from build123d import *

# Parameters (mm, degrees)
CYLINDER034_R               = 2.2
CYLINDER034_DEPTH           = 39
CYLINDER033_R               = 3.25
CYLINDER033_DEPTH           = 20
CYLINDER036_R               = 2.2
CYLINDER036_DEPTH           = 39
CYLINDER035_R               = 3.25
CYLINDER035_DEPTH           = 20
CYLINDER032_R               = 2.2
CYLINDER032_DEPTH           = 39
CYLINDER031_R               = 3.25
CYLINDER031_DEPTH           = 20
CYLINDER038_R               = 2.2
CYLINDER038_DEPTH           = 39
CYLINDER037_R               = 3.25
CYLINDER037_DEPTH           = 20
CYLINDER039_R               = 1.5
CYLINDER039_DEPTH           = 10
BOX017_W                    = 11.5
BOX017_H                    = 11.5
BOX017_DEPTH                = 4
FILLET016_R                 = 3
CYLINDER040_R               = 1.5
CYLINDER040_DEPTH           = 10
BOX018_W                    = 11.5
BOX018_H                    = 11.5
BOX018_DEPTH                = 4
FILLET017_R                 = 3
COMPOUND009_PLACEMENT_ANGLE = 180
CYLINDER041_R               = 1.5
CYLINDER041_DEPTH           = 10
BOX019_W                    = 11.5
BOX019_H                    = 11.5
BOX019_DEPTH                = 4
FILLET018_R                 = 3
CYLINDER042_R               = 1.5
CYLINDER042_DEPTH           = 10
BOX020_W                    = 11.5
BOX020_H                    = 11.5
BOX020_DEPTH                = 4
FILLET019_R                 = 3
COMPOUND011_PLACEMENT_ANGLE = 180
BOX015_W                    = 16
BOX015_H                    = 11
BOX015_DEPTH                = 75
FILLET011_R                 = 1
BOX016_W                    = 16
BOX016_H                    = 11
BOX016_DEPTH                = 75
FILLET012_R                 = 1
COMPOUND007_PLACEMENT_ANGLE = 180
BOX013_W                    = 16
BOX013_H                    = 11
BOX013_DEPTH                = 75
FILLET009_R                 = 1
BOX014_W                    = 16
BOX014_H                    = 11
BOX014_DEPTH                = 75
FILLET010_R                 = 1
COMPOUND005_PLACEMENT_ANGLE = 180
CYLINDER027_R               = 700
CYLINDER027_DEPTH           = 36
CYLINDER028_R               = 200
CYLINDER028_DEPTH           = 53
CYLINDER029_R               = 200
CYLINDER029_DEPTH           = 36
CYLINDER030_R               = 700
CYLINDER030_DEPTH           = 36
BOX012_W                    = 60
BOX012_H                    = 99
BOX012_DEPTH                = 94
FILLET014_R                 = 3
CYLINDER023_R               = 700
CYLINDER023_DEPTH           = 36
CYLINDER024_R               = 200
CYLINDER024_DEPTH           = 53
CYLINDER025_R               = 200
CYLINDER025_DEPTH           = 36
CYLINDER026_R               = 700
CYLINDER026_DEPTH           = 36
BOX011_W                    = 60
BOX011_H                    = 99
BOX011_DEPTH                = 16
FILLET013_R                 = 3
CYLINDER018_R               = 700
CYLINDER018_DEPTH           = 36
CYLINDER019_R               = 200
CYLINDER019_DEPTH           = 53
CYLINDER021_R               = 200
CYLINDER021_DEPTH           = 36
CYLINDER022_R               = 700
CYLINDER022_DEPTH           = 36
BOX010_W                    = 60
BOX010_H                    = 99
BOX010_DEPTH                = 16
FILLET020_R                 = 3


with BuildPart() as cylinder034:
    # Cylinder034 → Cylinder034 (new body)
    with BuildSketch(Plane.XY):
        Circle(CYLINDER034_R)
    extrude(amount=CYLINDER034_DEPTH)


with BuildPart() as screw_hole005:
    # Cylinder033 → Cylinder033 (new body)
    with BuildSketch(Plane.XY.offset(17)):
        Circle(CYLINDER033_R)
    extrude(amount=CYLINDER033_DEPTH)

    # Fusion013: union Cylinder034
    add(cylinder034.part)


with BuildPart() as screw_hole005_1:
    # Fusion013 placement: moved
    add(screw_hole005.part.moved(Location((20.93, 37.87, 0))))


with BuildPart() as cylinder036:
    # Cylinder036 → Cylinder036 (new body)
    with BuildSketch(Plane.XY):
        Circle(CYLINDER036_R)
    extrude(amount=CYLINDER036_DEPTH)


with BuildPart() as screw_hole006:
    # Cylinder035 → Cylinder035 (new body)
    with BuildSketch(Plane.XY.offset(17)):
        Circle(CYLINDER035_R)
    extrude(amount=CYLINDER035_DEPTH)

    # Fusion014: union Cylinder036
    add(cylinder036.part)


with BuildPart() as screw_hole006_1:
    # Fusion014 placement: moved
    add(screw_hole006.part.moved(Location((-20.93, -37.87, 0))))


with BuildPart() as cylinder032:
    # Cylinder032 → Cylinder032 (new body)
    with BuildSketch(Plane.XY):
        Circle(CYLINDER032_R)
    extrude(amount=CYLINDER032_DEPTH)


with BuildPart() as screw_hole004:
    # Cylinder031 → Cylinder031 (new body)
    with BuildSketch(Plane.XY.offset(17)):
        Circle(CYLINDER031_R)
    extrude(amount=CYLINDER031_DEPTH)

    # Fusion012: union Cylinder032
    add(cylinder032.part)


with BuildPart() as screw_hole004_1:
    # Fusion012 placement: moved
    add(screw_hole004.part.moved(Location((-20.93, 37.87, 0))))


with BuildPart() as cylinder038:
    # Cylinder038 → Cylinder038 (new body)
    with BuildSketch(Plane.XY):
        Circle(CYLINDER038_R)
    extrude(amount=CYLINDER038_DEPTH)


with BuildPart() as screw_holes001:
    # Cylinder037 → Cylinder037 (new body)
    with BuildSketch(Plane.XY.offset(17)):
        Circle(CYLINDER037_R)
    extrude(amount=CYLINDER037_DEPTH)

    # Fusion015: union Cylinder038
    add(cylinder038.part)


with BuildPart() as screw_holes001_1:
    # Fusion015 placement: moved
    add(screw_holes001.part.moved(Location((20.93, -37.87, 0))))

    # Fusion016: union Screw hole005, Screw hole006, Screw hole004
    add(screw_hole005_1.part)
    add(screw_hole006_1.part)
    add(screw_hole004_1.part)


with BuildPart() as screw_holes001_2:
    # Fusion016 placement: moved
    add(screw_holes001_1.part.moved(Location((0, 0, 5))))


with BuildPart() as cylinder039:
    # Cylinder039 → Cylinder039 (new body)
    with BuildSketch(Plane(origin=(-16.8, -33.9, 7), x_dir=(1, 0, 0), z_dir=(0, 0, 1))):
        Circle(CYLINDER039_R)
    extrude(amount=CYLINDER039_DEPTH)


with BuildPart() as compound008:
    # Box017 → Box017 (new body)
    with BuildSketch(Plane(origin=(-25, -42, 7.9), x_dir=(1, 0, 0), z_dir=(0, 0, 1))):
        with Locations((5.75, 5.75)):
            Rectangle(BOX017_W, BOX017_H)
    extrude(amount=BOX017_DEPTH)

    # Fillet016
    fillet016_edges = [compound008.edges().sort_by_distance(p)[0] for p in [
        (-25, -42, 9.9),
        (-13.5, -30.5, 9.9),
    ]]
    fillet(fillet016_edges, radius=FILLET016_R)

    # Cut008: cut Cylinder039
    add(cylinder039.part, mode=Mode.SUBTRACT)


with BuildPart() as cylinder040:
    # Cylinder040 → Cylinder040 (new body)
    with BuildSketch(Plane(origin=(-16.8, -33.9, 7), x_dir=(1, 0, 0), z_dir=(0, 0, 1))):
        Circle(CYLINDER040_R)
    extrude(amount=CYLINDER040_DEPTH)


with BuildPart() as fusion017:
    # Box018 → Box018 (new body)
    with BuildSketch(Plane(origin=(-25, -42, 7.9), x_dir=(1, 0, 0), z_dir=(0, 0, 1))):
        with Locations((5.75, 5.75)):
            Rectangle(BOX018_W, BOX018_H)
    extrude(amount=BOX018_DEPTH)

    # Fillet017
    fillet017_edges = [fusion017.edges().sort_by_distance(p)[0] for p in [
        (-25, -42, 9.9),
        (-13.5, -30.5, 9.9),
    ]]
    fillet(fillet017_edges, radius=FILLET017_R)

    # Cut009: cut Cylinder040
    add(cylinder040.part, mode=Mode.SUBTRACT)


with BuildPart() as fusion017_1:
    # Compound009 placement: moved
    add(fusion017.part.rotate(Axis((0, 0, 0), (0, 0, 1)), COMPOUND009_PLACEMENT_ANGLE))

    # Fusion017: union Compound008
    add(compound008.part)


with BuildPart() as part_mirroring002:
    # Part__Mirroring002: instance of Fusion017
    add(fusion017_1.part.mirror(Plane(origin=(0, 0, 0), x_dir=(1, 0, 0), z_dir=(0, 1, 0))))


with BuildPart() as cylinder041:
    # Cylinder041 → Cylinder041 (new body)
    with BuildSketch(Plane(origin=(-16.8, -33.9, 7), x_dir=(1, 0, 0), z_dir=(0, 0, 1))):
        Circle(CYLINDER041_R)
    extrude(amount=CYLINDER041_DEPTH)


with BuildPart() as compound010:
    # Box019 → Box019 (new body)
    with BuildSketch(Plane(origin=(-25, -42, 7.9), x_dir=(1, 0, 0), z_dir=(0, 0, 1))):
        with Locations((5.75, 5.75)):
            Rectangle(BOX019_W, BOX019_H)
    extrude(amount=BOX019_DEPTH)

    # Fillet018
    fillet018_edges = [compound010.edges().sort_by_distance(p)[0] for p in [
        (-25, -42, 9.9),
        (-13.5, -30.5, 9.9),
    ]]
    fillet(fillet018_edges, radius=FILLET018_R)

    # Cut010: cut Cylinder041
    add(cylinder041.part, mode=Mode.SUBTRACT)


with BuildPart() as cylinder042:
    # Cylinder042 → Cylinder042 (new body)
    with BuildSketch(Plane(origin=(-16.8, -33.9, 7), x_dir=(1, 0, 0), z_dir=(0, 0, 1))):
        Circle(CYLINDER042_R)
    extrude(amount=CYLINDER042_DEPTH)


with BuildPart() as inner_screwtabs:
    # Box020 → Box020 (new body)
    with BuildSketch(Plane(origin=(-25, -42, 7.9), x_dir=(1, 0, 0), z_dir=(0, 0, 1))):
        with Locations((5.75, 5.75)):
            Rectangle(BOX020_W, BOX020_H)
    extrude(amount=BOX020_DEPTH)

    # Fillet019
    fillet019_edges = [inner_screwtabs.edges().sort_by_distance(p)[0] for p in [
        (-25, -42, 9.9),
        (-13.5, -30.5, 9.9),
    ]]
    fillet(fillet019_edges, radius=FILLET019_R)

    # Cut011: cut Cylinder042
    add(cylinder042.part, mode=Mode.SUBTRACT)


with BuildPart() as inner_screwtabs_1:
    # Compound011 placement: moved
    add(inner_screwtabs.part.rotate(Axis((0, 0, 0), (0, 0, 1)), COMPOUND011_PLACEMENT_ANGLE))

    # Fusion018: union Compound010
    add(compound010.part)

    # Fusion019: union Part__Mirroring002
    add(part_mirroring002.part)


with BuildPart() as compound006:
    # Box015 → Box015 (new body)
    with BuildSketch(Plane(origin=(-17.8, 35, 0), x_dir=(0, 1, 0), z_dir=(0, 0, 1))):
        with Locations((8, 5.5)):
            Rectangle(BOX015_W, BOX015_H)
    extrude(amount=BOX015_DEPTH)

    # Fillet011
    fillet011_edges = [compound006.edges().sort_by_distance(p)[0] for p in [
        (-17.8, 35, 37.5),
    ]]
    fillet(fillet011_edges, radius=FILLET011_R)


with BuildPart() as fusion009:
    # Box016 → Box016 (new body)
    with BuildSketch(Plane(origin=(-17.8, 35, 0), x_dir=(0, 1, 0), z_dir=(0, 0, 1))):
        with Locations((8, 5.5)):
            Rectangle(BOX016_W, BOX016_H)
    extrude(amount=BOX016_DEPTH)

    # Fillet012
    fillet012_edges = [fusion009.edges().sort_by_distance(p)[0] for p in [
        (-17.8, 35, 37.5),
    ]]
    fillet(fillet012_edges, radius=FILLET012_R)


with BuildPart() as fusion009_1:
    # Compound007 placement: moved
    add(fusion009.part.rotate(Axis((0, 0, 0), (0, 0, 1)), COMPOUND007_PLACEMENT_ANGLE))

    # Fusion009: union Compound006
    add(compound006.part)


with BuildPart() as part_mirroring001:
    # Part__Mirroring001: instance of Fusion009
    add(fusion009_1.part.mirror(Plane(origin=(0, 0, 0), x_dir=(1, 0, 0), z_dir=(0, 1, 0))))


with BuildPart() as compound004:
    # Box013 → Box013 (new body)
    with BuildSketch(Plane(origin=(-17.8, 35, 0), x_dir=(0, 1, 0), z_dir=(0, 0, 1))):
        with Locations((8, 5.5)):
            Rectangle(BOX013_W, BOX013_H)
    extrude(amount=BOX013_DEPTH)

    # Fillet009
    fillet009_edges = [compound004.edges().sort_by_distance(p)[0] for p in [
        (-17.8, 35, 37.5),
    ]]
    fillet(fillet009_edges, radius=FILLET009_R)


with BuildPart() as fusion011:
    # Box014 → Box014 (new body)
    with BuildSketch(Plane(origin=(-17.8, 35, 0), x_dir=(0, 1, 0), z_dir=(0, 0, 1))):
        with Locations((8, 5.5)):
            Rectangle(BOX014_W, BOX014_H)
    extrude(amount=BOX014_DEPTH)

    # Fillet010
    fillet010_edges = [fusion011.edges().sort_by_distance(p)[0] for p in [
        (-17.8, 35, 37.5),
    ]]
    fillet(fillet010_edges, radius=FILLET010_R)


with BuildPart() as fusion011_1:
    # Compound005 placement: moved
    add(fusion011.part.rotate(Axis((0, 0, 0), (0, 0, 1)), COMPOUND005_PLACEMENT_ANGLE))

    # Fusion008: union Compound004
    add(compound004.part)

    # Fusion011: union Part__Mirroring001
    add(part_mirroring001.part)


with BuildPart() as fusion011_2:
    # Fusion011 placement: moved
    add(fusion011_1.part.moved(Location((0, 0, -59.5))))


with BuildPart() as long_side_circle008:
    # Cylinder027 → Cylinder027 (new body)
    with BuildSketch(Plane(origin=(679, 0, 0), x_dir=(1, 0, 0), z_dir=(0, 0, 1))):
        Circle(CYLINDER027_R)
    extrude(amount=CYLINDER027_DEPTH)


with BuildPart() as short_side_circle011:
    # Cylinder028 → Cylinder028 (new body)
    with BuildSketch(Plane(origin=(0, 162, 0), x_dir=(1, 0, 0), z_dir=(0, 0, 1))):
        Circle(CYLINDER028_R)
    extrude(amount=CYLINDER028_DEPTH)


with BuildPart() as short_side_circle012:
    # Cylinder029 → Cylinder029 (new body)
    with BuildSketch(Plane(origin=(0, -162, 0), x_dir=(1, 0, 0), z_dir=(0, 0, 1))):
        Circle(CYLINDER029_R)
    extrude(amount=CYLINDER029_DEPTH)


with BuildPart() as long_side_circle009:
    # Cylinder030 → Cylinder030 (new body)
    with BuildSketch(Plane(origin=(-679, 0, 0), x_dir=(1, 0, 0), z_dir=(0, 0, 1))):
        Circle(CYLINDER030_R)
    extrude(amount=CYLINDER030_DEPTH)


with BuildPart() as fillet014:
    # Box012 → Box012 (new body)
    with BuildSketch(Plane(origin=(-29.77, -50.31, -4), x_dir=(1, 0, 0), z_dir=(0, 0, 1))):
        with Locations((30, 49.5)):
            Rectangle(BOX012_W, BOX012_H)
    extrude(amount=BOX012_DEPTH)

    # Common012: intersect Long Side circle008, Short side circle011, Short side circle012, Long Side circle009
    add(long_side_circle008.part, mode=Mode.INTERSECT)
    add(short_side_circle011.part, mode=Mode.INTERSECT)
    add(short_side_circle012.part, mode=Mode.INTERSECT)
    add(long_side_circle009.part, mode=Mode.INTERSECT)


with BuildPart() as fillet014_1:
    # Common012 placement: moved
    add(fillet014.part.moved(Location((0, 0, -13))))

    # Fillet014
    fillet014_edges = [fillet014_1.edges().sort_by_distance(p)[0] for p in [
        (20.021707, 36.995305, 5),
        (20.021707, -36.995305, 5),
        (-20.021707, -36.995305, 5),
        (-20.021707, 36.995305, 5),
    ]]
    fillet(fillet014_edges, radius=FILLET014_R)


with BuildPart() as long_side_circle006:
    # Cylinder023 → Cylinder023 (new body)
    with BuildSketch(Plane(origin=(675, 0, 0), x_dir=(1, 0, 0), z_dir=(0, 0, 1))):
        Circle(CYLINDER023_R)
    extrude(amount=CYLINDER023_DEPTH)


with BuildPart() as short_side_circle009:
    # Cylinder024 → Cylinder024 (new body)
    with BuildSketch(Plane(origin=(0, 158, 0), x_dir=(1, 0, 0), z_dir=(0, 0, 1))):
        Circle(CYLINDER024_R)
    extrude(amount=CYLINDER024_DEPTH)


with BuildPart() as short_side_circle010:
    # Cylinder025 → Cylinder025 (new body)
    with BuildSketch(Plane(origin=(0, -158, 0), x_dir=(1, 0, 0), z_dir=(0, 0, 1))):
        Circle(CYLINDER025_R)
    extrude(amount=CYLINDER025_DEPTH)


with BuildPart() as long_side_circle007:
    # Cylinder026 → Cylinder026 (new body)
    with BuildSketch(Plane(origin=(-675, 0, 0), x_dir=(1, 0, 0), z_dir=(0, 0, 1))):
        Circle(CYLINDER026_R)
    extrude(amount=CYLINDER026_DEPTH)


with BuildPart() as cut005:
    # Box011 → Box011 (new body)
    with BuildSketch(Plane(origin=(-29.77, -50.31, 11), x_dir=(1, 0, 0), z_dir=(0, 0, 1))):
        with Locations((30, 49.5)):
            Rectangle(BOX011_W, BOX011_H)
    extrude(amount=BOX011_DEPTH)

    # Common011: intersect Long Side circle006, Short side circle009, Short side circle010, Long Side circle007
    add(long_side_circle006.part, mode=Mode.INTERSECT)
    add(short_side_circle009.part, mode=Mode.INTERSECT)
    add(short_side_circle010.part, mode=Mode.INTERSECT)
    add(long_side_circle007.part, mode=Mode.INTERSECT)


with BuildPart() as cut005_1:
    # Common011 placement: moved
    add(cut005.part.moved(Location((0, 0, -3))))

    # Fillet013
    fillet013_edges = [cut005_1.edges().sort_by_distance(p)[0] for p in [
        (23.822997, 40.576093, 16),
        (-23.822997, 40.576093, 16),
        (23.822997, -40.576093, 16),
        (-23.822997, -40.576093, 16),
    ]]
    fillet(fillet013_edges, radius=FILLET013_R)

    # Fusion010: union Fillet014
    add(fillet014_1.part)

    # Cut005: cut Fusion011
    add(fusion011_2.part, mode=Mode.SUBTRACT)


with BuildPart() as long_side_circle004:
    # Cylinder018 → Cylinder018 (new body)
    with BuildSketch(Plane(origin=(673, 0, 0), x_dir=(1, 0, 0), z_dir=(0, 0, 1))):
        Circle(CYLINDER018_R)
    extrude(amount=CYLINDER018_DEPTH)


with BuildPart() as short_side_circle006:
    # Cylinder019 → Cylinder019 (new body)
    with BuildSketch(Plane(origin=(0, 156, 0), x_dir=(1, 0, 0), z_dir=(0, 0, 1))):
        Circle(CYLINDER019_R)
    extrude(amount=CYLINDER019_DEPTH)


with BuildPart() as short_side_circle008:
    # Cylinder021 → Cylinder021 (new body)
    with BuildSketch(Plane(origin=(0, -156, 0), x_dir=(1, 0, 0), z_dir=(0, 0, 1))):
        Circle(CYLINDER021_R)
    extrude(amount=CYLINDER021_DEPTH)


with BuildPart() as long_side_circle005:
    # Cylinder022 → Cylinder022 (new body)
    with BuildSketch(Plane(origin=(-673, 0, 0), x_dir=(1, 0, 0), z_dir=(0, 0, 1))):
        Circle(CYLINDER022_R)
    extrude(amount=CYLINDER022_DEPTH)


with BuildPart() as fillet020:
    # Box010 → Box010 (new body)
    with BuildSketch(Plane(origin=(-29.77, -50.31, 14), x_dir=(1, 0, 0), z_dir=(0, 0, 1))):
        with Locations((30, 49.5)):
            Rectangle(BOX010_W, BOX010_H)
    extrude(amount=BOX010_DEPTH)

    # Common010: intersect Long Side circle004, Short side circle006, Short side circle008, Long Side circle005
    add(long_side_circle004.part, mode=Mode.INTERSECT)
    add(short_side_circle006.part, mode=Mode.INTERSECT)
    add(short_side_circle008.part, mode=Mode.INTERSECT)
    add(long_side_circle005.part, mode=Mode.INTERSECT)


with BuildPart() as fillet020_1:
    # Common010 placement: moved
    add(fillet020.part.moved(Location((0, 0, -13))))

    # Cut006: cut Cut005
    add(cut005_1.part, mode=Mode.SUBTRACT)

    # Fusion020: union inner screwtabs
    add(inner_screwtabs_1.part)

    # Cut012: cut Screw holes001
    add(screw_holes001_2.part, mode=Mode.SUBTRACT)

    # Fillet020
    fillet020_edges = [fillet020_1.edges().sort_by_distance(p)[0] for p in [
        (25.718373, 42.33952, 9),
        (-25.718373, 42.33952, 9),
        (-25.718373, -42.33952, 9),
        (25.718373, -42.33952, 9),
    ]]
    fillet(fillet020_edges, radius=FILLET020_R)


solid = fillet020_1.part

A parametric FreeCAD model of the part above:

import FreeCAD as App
import Part
import Sketcher


def edges_at(feature, points):
    """Names of the edges that pass closest to the given points."""
    edges = feature.Shape.Edges
    near = lambda p: min(range(len(edges)), key=lambda i: edges[i].distToShape(Part.Vertex(*p))[0])
    return sorted({f"Edge{near(p) + 1}" for p in points})


def add_polygon(sketch, points):
    """Adds a closed chain of lines whose ends are joined by coincident constraints."""
    first, n = sketch.GeometryCount, len(points)
    for a, b in zip(points, points[1:] + points[:1]):
        sketch.addGeometry(Part.LineSegment(App.Vector(*a, 0), App.Vector(*b, 0)), False)
    for i in range(n):
        sketch.addConstraint(Sketcher.Constraint("Coincident", first + i, 2, first + (i + 1) % n, 1))

doc = App.newDocument("Part")
body = doc.addObject("PartDesign::Body", "Body")

sketch1 = body.newObject("Sketcher::SketchObject", "Sketch")
sketch1.AttachmentSupport = (doc.getObject("XY_Plane"), [""])
sketch1.MapMode = "FlatFace"
sketch1.addGeometry(Part.Circle(App.Vector(0, 0, 0), App.Vector(0, 0, 1), 2.2), False)
sketch1.addConstraint([
    Sketcher.Constraint("Coincident", 0, 3, -1, 1),
    Sketcher.Constraint("Diameter", 0, 4.4),
])
pad1 = body.newObject("PartDesign::Pad", "Pad")
pad1.Profile = sketch1
pad1.Length = 39
body2 = doc.addObject("PartDesign::Body", "Body001")

sketch2 = body2.newObject("Sketcher::SketchObject", "Sketch001")
sketch2.AttachmentSupport = (doc.getObject("XY_Plane001"), [""])
sketch2.MapMode = "FlatFace"
sketch2.AttachmentOffset = App.Placement(App.Vector(0, 0, 17), App.Rotation())
sketch2.addGeometry(Part.Circle(App.Vector(0, 0, 0), App.Vector(0, 0, 1), 3.25), False)
sketch2.addConstraint([
    Sketcher.Constraint("Coincident", 0, 3, -1, 1),
    Sketcher.Constraint("Diameter", 0, 6.5),
])
pad2 = body2.newObject("PartDesign::Pad", "Pad001")
pad2.Profile = sketch2
pad2.Length = 20
doc.recompute()

boolean = body2.newObject("PartDesign::Boolean", "Boolean")
boolean.Type = "Fuse"
boolean.addObjects([body])
body3 = doc.addObject("PartDesign::Body", "Body002")
doc.recompute()

body2.Placement = App.Placement(App.Vector(20.93, 37.87, 0), App.Rotation(App.Vector(0, 0, 1), 0))
boolean2 = body3.newObject("PartDesign::Boolean", "Boolean001")
boolean2.Type = "Fuse"
boolean2.addObjects([body2])
body4 = doc.addObject("PartDesign::Body", "Body003")

sketch3 = body4.newObject("Sketcher::SketchObject", "Sketch002")
sketch3.AttachmentSupport = (doc.getObject("XY_Plane003"), [""])
sketch3.MapMode = "FlatFace"
sketch3.addGeometry(Part.Circle(App.Vector(0, 0, 0), App.Vector(0, 0, 1), 2.2), False)
sketch3.addConstraint([
    Sketcher.Constraint("Coincident", 0, 3, -1, 1),
    Sketcher.Constraint("Diameter", 0, 4.4),
])
pad3 = body4.newObject("PartDesign::Pad", "Pad002")
pad3.Profile = sketch3
pad3.Length = 39
body5 = doc.addObject("PartDesign::Body", "Body004")

sketch4 = body5.newObject("Sketcher::SketchObject", "Sketch003")
sketch4.AttachmentSupport = (doc.getObject("XY_Plane004"), [""])
sketch4.MapMode = "FlatFace"
sketch4.AttachmentOffset = App.Placement(App.Vector(0, 0, 17), App.Rotation())
sketch4.addGeometry(Part.Circle(App.Vector(0, 0, 0), App.Vector(0, 0, 1), 3.25), False)
sketch4.addConstraint([
    Sketcher.Constraint("Coincident", 0, 3, -1, 1),
    Sketcher.Constraint("Diameter", 0, 6.5),
])
pad4 = body5.newObject("PartDesign::Pad", "Pad003")
pad4.Profile = sketch4
pad4.Length = 20
doc.recompute()

boolean3 = body5.newObject("PartDesign::Boolean", "Boolean002")
boolean3.Type = "Fuse"
boolean3.addObjects([body4])
body6 = doc.addObject("PartDesign::Body", "Body005")
doc.recompute()

body5.Placement = App.Placement(App.Vector(-20.93, -37.87, 0), App.Rotation(App.Vector(0, 0, 1), 0))
boolean4 = body6.newObject("PartDesign::Boolean", "Boolean003")
boolean4.Type = "Fuse"
boolean4.addObjects([body5])
body7 = doc.addObject("PartDesign::Body", "Body006")

sketch5 = body7.newObject("Sketcher::SketchObject", "Sketch004")
sketch5.AttachmentSupport = (doc.getObject("XY_Plane006"), [""])
sketch5.MapMode = "FlatFace"
sketch5.addGeometry(Part.Circle(App.Vector(0, 0, 0), App.Vector(0, 0, 1), 2.2), False)
sketch5.addConstraint([
    Sketcher.Constraint("Coincident", 0, 3, -1, 1),
    Sketcher.Constraint("Diameter", 0, 4.4),
])
pad5 = body7.newObject("PartDesign::Pad", "Pad004")
pad5.Profile = sketch5
pad5.Length = 39
body8 = doc.addObject("PartDesign::Body", "Body007")

sketch6 = body8.newObject("Sketcher::SketchObject", "Sketch005")
sketch6.AttachmentSupport = (doc.getObject("XY_Plane007"), [""])
sketch6.MapMode = "FlatFace"
sketch6.AttachmentOffset = App.Placement(App.Vector(0, 0, 17), App.Rotation())
sketch6.addGeometry(Part.Circle(App.Vector(0, 0, 0), App.Vector(0, 0, 1), 3.25), False)
sketch6.addConstraint([
    Sketcher.Constraint("Coincident", 0, 3, -1, 1),
    Sketcher.Constraint("Diameter", 0, 6.5),
])
pad6 = body8.newObject("PartDesign::Pad", "Pad005")
pad6.Profile = sketch6
pad6.Length = 20
doc.recompute()

boolean5 = body8.newObject("PartDesign::Boolean", "Boolean004")
boolean5.Type = "Fuse"
boolean5.addObjects([body7])
body9 = doc.addObject("PartDesign::Body", "Body008")
doc.recompute()

body8.Placement = App.Placement(App.Vector(-20.93, 37.87, 0), App.Rotation(App.Vector(0, 0, 1), 0))
boolean6 = body9.newObject("PartDesign::Boolean", "Boolean005")
boolean6.Type = "Fuse"
boolean6.addObjects([body8])
body10 = doc.addObject("PartDesign::Body", "Body009")

sketch7 = body10.newObject("Sketcher::SketchObject", "Sketch006")
sketch7.AttachmentSupport = (doc.getObject("XY_Plane009"), [""])
sketch7.MapMode = "FlatFace"
sketch7.addGeometry(Part.Circle(App.Vector(0, 0, 0), App.Vector(0, 0, 1), 2.2), False)
sketch7.addConstraint([
    Sketcher.Constraint("Coincident", 0, 3, -1, 1),
    Sketcher.Constraint("Diameter", 0, 4.4),
])
pad7 = body10.newObject("PartDesign::Pad", "Pad006")
pad7.Profile = sketch7
pad7.Length = 39
body11 = doc.addObject("PartDesign::Body", "Body010")

sketch8 = body11.newObject("Sketcher::SketchObject", "Sketch007")
sketch8.AttachmentSupport = (doc.getObject("XY_Plane010"), [""])
sketch8.MapMode = "FlatFace"
sketch8.AttachmentOffset = App.Placement(App.Vector(0, 0, 17), App.Rotation())
sketch8.addGeometry(Part.Circle(App.Vector(0, 0, 0), App.Vector(0, 0, 1), 3.25), False)
sketch8.addConstraint([
    Sketcher.Constraint("Coincident", 0, 3, -1, 1),
    Sketcher.Constraint("Diameter", 0, 6.5),
])
pad8 = body11.newObject("PartDesign::Pad", "Pad007")
pad8.Profile = sketch8
pad8.Length = 20
doc.recompute()

boolean7 = body11.newObject("PartDesign::Boolean", "Boolean006")
boolean7.Type = "Fuse"
boolean7.addObjects([body10])
body12 = doc.addObject("PartDesign::Body", "Body011")
body12.AllowCompound = True
doc.recompute()

body11.Placement = App.Placement(App.Vector(20.93, -37.87, 0), App.Rotation(App.Vector(0, 0, 1), 0))
boolean8 = body12.newObject("PartDesign::Boolean", "Boolean007")
boolean8.Type = "Fuse"
boolean8.addObjects([body11])
doc.recompute()

boolean9 = body12.newObject("PartDesign::Boolean", "Boolean008")
boolean9.Type = "Fuse"
boolean9.addObjects([body3])
doc.recompute()

boolean10 = body12.newObject("PartDesign::Boolean", "Boolean009")
boolean10.Type = "Fuse"
boolean10.addObjects([body6])
doc.recompute()

boolean11 = body12.newObject("PartDesign::Boolean", "Boolean010")
boolean11.Type = "Fuse"
boolean11.addObjects([body9])
body13 = doc.addObject("PartDesign::Body", "Body012")
body13.AllowCompound = True
doc.recompute()

body12.Placement = App.Placement(App.Vector(0, 0, 5), App.Rotation(App.Vector(0, 0, 1), 0))
boolean12 = body13.newObject("PartDesign::Boolean", "Boolean011")
boolean12.Type = "Fuse"
boolean12.addObjects([body12])
body14 = doc.addObject("PartDesign::Body", "Body013")

sketch9 = body14.newObject("Sketcher::SketchObject", "Sketch008")
sketch9.AttachmentSupport = (doc.getObject("XY_Plane013"), [""])
sketch9.MapMode = "FlatFace"
sketch9.AttachmentOffset = App.Placement(App.Vector(0, 0, 7), App.Rotation())
sketch9.addGeometry(Part.Circle(App.Vector(-16.8, -33.9, 0), App.Vector(0, 0, 1), 1.5), False)
sketch9.addConstraint([
    Sketcher.Constraint("Diameter", 0, 3.0),
    Sketcher.Constraint("DistanceX", 0, 3, -1, 1, 16.8),
    Sketcher.Constraint("DistanceY", 0, 3, -1, 1, 33.9),
])
pad9 = body14.newObject("PartDesign::Pad", "Pad008")
pad9.Profile = sketch9
pad9.Length = 10
body15 = doc.addObject("PartDesign::Body", "Body014")

sketch10 = body15.newObject("Sketcher::SketchObject", "Sketch009")
sketch10.AttachmentSupport = (doc.getObject("XY_Plane014"), [""])
sketch10.MapMode = "FlatFace"
sketch10.AttachmentOffset = App.Placement(App.Vector(0, 0, 7.9), App.Rotation())
add_polygon(sketch10, [(-25, -30.5), (-25, -42), (-13.5, -42), (-13.5, -30.5)])
sketch10.addConstraint([
    Sketcher.Constraint("Vertical", 0),
    Sketcher.Constraint("Horizontal", 1),
    Sketcher.Constraint("Vertical", 2),
    Sketcher.Constraint("Horizontal", 3),
    Sketcher.Constraint("Equal", 3, 0),
    Sketcher.Constraint("DistanceX", 1, 1, 1, 2, 11.5),
    Sketcher.Constraint("DistanceX", 0, 2, -1, 1, 25.0),
    Sketcher.Constraint("DistanceY", 0, 2, -1, 1, 42.0),
])
pad10 = body15.newObject("PartDesign::Pad", "Pad009")
pad10.Profile = sketch10
pad10.Length = 4
doc.recompute()

fillet = body15.newObject("PartDesign::Fillet", "Fillet")
fillet.Base = (pad10, edges_at(pad10, [(-25, -42, 9.9), (-13.5, -30.5, 9.9)]))
fillet.Radius = 3
doc.recompute()

boolean13 = body15.newObject("PartDesign::Boolean", "Boolean012")
boolean13.Type = "Cut"
boolean13.addObjects([body14])
body16 = doc.addObject("PartDesign::Body", "Body015")

sketch11 = body16.newObject("Sketcher::SketchObject", "Sketch010")
sketch11.AttachmentSupport = (doc.getObject("XY_Plane015"), [""])
sketch11.MapMode = "FlatFace"
sketch11.AttachmentOffset = App.Placement(App.Vector(0, 0, 7), App.Rotation())
sketch11.addGeometry(Part.Circle(App.Vector(-16.8, -33.9, 0), App.Vector(0, 0, 1), 1.5), False)
sketch11.addConstraint([
    Sketcher.Constraint("Diameter", 0, 3.0),
    Sketcher.Constraint("DistanceX", 0, 3, -1, 1, 16.8),
    Sketcher.Constraint("DistanceY", 0, 3, -1, 1, 33.9),
])
pad11 = body16.newObject("PartDesign::Pad", "Pad010")
pad11.Profile = sketch11
pad11.Length = 10
body17 = doc.addObject("PartDesign::Body", "Body016")

sketch12 = body17.newObject("Sketcher::SketchObject", "Sketch011")
sketch12.AttachmentSupport = (doc.getObject("XY_Plane016"), [""])
sketch12.MapMode = "FlatFace"
sketch12.AttachmentOffset = App.Placement(App.Vector(0, 0, 7.9), App.Rotation())
add_polygon(sketch12, [(-25, -30.5), (-25, -42), (-13.5, -42), (-13.5, -30.5)])
sketch12.addConstraint([
    Sketcher.Constraint("Vertical", 0),
    Sketcher.Constraint("Horizontal", 1),
    Sketcher.Constraint("Vertical", 2),
    Sketcher.Constraint("Horizontal", 3),
    Sketcher.Constraint("Equal", 3, 0),
    Sketcher.Constraint("DistanceX", 1, 1, 1, 2, 11.5),
    Sketcher.Constraint("DistanceX", 0, 2, -1, 1, 25.0),
    Sketcher.Constraint("DistanceY", 0, 2, -1, 1, 42.0),
])
pad12 = body17.newObject("PartDesign::Pad", "Pad011")
pad12.Profile = sketch12
pad12.Length = 4
doc.recompute()

fillet2 = body17.newObject("PartDesign::Fillet", "Fillet001")
fillet2.Base = (pad12, edges_at(pad12, [(-25, -42, 9.9), (-13.5, -30.5, 9.9)]))
fillet2.Radius = 3
doc.recompute()

boolean14 = body17.newObject("PartDesign::Boolean", "Boolean013")
boolean14.Type = "Cut"
boolean14.addObjects([body16])
body18 = doc.addObject("PartDesign::Body", "Body017")
body18.AllowCompound = True
doc.recompute()

body17.Placement = App.Placement(App.Vector(0, 0, 0), App.Rotation(App.Vector(0, 0, 1), 180))
boolean15 = body18.newObject("PartDesign::Boolean", "Boolean014")
boolean15.Type = "Fuse"
boolean15.addObjects([body17])
doc.recompute()

boolean16 = body18.newObject("PartDesign::Boolean", "Boolean015")
boolean16.Type = "Fuse"
boolean16.addObjects([body15])
body19 = doc.addObject("PartDesign::Body", "Body018")
body19.AllowCompound = True
doc.recompute()

mirroring = doc.addObject("Part::Mirroring", "Mirroring")
mirroring.Source = body18
mirroring.Base = App.Vector(0, 0, 0)
mirroring.Normal = App.Vector(0, 1, 0)
body19.BaseFeature = mirroring
doc.recompute()
body20 = doc.addObject("PartDesign::Body", "Body019")

sketch13 = body20.newObject("Sketcher::SketchObject", "Sketch012")
sketch13.AttachmentSupport = (doc.getObject("XY_Plane019"), [""])
sketch13.MapMode = "FlatFace"
sketch13.AttachmentOffset = App.Placement(App.Vector(0, 0, 7), App.Rotation())
sketch13.addGeometry(Part.Circle(App.Vector(-16.8, -33.9, 0), App.Vector(0, 0, 1), 1.5), False)
sketch13.addConstraint([
    Sketcher.Constraint("Diameter", 0, 3.0),
    Sketcher.Constraint("DistanceX", 0, 3, -1, 1, 16.8),
    Sketcher.Constraint("DistanceY", 0, 3, -1, 1, 33.9),
])
pad13 = body20.newObject("PartDesign::Pad", "Pad012")
pad13.Profile = sketch13
pad13.Length = 10
body21 = doc.addObject("PartDesign::Body", "Body020")

sketch14 = body21.newObject("Sketcher::SketchObject", "Sketch013")
sketch14.AttachmentSupport = (doc.getObject("XY_Plane020"), [""])
sketch14.MapMode = "FlatFace"
sketch14.AttachmentOffset = App.Placement(App.Vector(0, 0, 7.9), App.Rotation())
add_polygon(sketch14, [(-25, -30.5), (-25, -42), (-13.5, -42), (-13.5, -30.5)])
sketch14.addConstraint([
    Sketcher.Constraint("Vertical", 0),
    Sketcher.Constraint("Horizontal", 1),
    Sketcher.Constraint("Vertical", 2),
    Sketcher.Constraint("Horizontal", 3),
    Sketcher.Constraint("Equal", 3, 0),
    Sketcher.Constraint("DistanceX", 1, 1, 1, 2, 11.5),
    Sketcher.Constraint("DistanceX", 0, 2, -1, 1, 25.0),
    Sketcher.Constraint("DistanceY", 0, 2, -1, 1, 42.0),
])
pad14 = body21.newObject("PartDesign::Pad", "Pad013")
pad14.Profile = sketch14
pad14.Length = 4
doc.recompute()

fillet3 = body21.newObject("PartDesign::Fillet", "Fillet002")
fillet3.Base = (pad14, edges_at(pad14, [(-25, -42, 9.9), (-13.5, -30.5, 9.9)]))
fillet3.Radius = 3
doc.recompute()

boolean17 = body21.newObject("PartDesign::Boolean", "Boolean016")
boolean17.Type = "Cut"
boolean17.addObjects([body20])
body22 = doc.addObject("PartDesign::Body", "Body021")

sketch15 = body22.newObject("Sketcher::SketchObject", "Sketch014")
sketch15.AttachmentSupport = (doc.getObject("XY_Plane021"), [""])
sketch15.MapMode = "FlatFace"
sketch15.AttachmentOffset = App.Placement(App.Vector(0, 0, 7), App.Rotation())
sketch15.addGeometry(Part.Circle(App.Vector(-16.8, -33.9, 0), App.Vector(0, 0, 1), 1.5), False)
sketch15.addConstraint([
    Sketcher.Constraint("Diameter", 0, 3.0),
    Sketcher.Constraint("DistanceX", 0, 3, -1, 1, 16.8),
    Sketcher.Constraint("DistanceY", 0, 3, -1, 1, 33.9),
])
pad15 = body22.newObject("PartDesign::Pad", "Pad014")
pad15.Profile = sketch15
pad15.Length = 10
body23 = doc.addObject("PartDesign::Body", "Body022")

sketch16 = body23.newObject("Sketcher::SketchObject", "Sketch015")
sketch16.AttachmentSupport = (doc.getObject("XY_Plane022"), [""])
sketch16.MapMode = "FlatFace"
sketch16.AttachmentOffset = App.Placement(App.Vector(0, 0, 7.9), App.Rotation())
add_polygon(sketch16, [(-25, -30.5), (-25, -42), (-13.5, -42), (-13.5, -30.5)])
sketch16.addConstraint([
    Sketcher.Constraint("Vertical", 0),
    Sketcher.Constraint("Horizontal", 1),
    Sketcher.Constraint("Vertical", 2),
    Sketcher.Constraint("Horizontal", 3),
    Sketcher.Constraint("Equal", 3, 0),
    Sketcher.Constraint("DistanceX", 1, 1, 1, 2, 11.5),
    Sketcher.Constraint("DistanceX", 0, 2, -1, 1, 25.0),
    Sketcher.Constraint("DistanceY", 0, 2, -1, 1, 42.0),
])
pad16 = body23.newObject("PartDesign::Pad", "Pad015")
pad16.Profile = sketch16
pad16.Length = 4
doc.recompute()

fillet4 = body23.newObject("PartDesign::Fillet", "Fillet003")
fillet4.Base = (pad16, edges_at(pad16, [(-25, -42, 9.9), (-13.5, -30.5, 9.9)]))
fillet4.Radius = 3
doc.recompute()

boolean18 = body23.newObject("PartDesign::Boolean", "Boolean017")
boolean18.Type = "Cut"
boolean18.addObjects([body22])
body24 = doc.addObject("PartDesign::Body", "Body023")
body24.AllowCompound = True
doc.recompute()

body23.Placement = App.Placement(App.Vector(0, 0, 0), App.Rotation(App.Vector(0, 0, 1), 180))
boolean19 = body24.newObject("PartDesign::Boolean", "Boolean018")
boolean19.Type = "Fuse"
boolean19.addObjects([body23])
doc.recompute()

boolean20 = body24.newObject("PartDesign::Boolean", "Boolean019")
boolean20.Type = "Fuse"
boolean20.addObjects([body21])
doc.recompute()

boolean21 = body24.newObject("PartDesign::Boolean", "Boolean020")
boolean21.Type = "Fuse"
boolean21.addObjects([body19])
body25 = doc.addObject("PartDesign::Body", "Body024")

sketch17 = body25.newObject("Sketcher::SketchObject", "Sketch016")
sketch17.AttachmentSupport = (doc.getObject("XY_Plane024"), [""])
sketch17.MapMode = "FlatFace"
add_polygon(sketch17, [(-28.8, 35), (-17.8, 35), (-17.8, 51), (-28.8, 51)])
sketch17.addConstraint([
    Sketcher.Constraint("Horizontal", 0),
    Sketcher.Constraint("Vertical", 1),
    Sketcher.Constraint("Horizontal", 2),
    Sketcher.Constraint("Vertical", 3),
    Sketcher.Constraint("DistanceX", 0, 1, 0, 2, 11.0),
    Sketcher.Constraint("DistanceY", 1, 1, 1, 2, 16.0),
    Sketcher.Constraint("DistanceY", -1, 1, 0, 2, 35.0),
    Sketcher.Constraint("DistanceX", 0, 2, -1, 1, 17.8),
])
pad17 = body25.newObject("PartDesign::Pad", "Pad016")
pad17.Profile = sketch17
pad17.Length = 75
doc.recompute()

fillet5 = body25.newObject("PartDesign::Fillet", "Fillet004")
fillet5.Base = (pad17, edges_at(pad17, [(-17.8, 35, 37.5)]))
fillet5.Radius = 1
body26 = doc.addObject("PartDesign::Body", "Body025")

sketch18 = body26.newObject("Sketcher::SketchObject", "Sketch017")
sketch18.AttachmentSupport = (doc.getObject("XY_Plane025"), [""])
sketch18.MapMode = "FlatFace"
add_polygon(sketch18, [(-28.8, 35), (-17.8, 35), (-17.8, 51), (-28.8, 51)])
sketch18.addConstraint([
    Sketcher.Constraint("Horizontal", 0),
    Sketcher.Constraint("Vertical", 1),
    Sketcher.Constraint("Horizontal", 2),
    Sketcher.Constraint("Vertical", 3),
    Sketcher.Constraint("DistanceX", 0, 1, 0, 2, 11.0),
    Sketcher.Constraint("DistanceY", 1, 1, 1, 2, 16.0),
    Sketcher.Constraint("DistanceY", -1, 1, 0, 2, 35.0),
    Sketcher.Constraint("DistanceX", 0, 2, -1, 1, 17.8),
])
pad18 = body26.newObject("PartDesign::Pad", "Pad017")
pad18.Profile = sketch18
pad18.Length = 75
doc.recompute()

fillet6 = body26.newObject("PartDesign::Fillet", "Fillet005")
fillet6.Base = (pad18, edges_at(pad18, [(-17.8, 35, 37.5)]))
fillet6.Radius = 1
body27 = doc.addObject("PartDesign::Body", "Body026")
body27.AllowCompound = True
doc.recompute()

body26.Placement = App.Placement(App.Vector(0, 0, 0), App.Rotation(App.Vector(0, 0, 1), 180))
boolean22 = body27.newObject("PartDesign::Boolean", "Boolean021")
boolean22.Type = "Fuse"
boolean22.addObjects([body26])
doc.recompute()

boolean23 = body27.newObject("PartDesign::Boolean", "Boolean022")
boolean23.Type = "Fuse"
boolean23.addObjects([body25])
body28 = doc.addObject("PartDesign::Body", "Body027")
body28.AllowCompound = True
doc.recompute()

mirroring2 = doc.addObject("Part::Mirroring", "Mirroring001")
mirroring2.Source = body27
mirroring2.Base = App.Vector(0, 0, 0)
mirroring2.Normal = App.Vector(0, 1, 0)
body28.BaseFeature = mirroring2
doc.recompute()
body29 = doc.addObject("PartDesign::Body", "Body028")

sketch19 = body29.newObject("Sketcher::SketchObject", "Sketch018")
sketch19.AttachmentSupport = (doc.getObject("XY_Plane028"), [""])
sketch19.MapMode = "FlatFace"
add_polygon(sketch19, [(-28.8, 35), (-17.8, 35), (-17.8, 51), (-28.8, 51)])
sketch19.addConstraint([
    Sketcher.Constraint("Horizontal", 0),
    Sketcher.Constraint("Vertical", 1),
    Sketcher.Constraint("Horizontal", 2),
    Sketcher.Constraint("Vertical", 3),
    Sketcher.Constraint("DistanceX", 0, 1, 0, 2, 11.0),
    Sketcher.Constraint("DistanceY", 1, 1, 1, 2, 16.0),
    Sketcher.Constraint("DistanceY", -1, 1, 0, 2, 35.0),
    Sketcher.Constraint("DistanceX", 0, 2, -1, 1, 17.8),
])
pad19 = body29.newObject("PartDesign::Pad", "Pad018")
pad19.Profile = sketch19
pad19.Length = 75
doc.recompute()

fillet7 = body29.newObject("PartDesign::Fillet", "Fillet006")
fillet7.Base = (pad19, edges_at(pad19, [(-17.8, 35, 37.5)]))
fillet7.Radius = 1
body30 = doc.addObject("PartDesign::Body", "Body029")

sketch20 = body30.newObject("Sketcher::SketchObject", "Sketch019")
sketch20.AttachmentSupport = (doc.getObject("XY_Plane029"), [""])
sketch20.MapMode = "FlatFace"
add_polygon(sketch20, [(-28.8, 35), (-17.8, 35), (-17.8, 51), (-28.8, 51)])
sketch20.addConstraint([
    Sketcher.Constraint("Horizontal", 0),
    Sketcher.Constraint("Vertical", 1),
    Sketcher.Constraint("Horizontal", 2),
    Sketcher.Constraint("Vertical", 3),
    Sketcher.Constraint("DistanceX", 0, 1, 0, 2, 11.0),
    Sketcher.Constraint("DistanceY", 1, 1, 1, 2, 16.0),
    Sketcher.Constraint("DistanceY", -1, 1, 0, 2, 35.0),
    Sketcher.Constraint("DistanceX", 0, 2, -1, 1, 17.8),
])
pad20 = body30.newObject("PartDesign::Pad", "Pad019")
pad20.Profile = sketch20
pad20.Length = 75
doc.recompute()

fillet8 = body30.newObject("PartDesign::Fillet", "Fillet007")
fillet8.Base = (pad20, edges_at(pad20, [(-17.8, 35, 37.5)]))
fillet8.Radius = 1
body31 = doc.addObject("PartDesign::Body", "Body030")
body31.AllowCompound = True
doc.recompute()

body30.Placement = App.Placement(App.Vector(0, 0, 0), App.Rotation(App.Vector(0, 0, 1), 180))
boolean24 = body31.newObject("PartDesign::Boolean", "Boolean023")
boolean24.Type = "Fuse"
boolean24.addObjects([body30])
doc.recompute()

boolean25 = body31.newObject("PartDesign::Boolean", "Boolean024")
boolean25.Type = "Fuse"
boolean25.addObjects([body29])
doc.recompute()

boolean26 = body31.newObject("PartDesign::Boolean", "Boolean025")
boolean26.Type = "Fuse"
boolean26.addObjects([body28])
body32 = doc.addObject("PartDesign::Body", "Body031")
body32.AllowCompound = True
doc.recompute()

body31.Placement = App.Placement(App.Vector(0, 0, -59.5), App.Rotation(App.Vector(0, 0, 1), 0))
boolean27 = body32.newObject("PartDesign::Boolean", "Boolean026")
boolean27.Type = "Fuse"
boolean27.addObjects([body31])
body33 = doc.addObject("PartDesign::Body", "Body032")

sketch21 = body33.newObject("Sketcher::SketchObject", "Sketch020")
sketch21.AttachmentSupport = (doc.getObject("XY_Plane032"), [""])
sketch21.MapMode = "FlatFace"
sketch21.addGeometry(Part.Circle(App.Vector(679, 0, 0), App.Vector(0, 0, 1), 700), False)
sketch21.addConstraint([
    Sketcher.Constraint("PointOnObject", 0, 3, -1),
    Sketcher.Constraint("Diameter", 0, 1400.0),
    Sketcher.Constraint("DistanceX", -1, 1, 0, 3, 679.0),
])
pad21 = body33.newObject("PartDesign::Pad", "Pad020")
pad21.Profile = sketch21
pad21.Length = 36
body34 = doc.addObject("PartDesign::Body", "Body033")

sketch22 = body34.newObject("Sketcher::SketchObject", "Sketch021")
sketch22.AttachmentSupport = (doc.getObject("XY_Plane033"), [""])
sketch22.MapMode = "FlatFace"
sketch22.addGeometry(Part.Circle(App.Vector(0, 162, 0), App.Vector(0, 0, 1), 200), False)
sketch22.addConstraint([
    Sketcher.Constraint("PointOnObject", 0, 3, -2),
    Sketcher.Constraint("Diameter", 0, 400.0),
    Sketcher.Constraint("DistanceY", -1, 1, 0, 3, 162.0),
])
pad22 = body34.newObject("PartDesign::Pad", "Pad021")
pad22.Profile = sketch22
pad22.Length = 53
body35 = doc.addObject("PartDesign::Body", "Body034")

sketch23 = body35.newObject("Sketcher::SketchObject", "Sketch022")
sketch23.AttachmentSupport = (doc.getObject("XY_Plane034"), [""])
sketch23.MapMode = "FlatFace"
sketch23.addGeometry(Part.Circle(App.Vector(0, -162, 0), App.Vector(0, 0, 1), 200), False)
sketch23.addConstraint([
    Sketcher.Constraint("PointOnObject", 0, 3, -2),
    Sketcher.Constraint("Diameter", 0, 400.0),
    Sketcher.Constraint("DistanceY", 0, 3, -1, 1, 162.0),
])
pad23 = body35.newObject("PartDesign::Pad", "Pad022")
pad23.Profile = sketch23
pad23.Length = 36
body36 = doc.addObject("PartDesign::Body", "Body035")

sketch24 = body36.newObject("Sketcher::SketchObject", "Sketch023")
sketch24.AttachmentSupport = (doc.getObject("XY_Plane035"), [""])
sketch24.MapMode = "FlatFace"
sketch24.addGeometry(Part.Circle(App.Vector(-679, 0, 0), App.Vector(0, 0, 1), 700), False)
sketch24.addConstraint([
    Sketcher.Constraint("PointOnObject", 0, 3, -1),
    Sketcher.Constraint("Diameter", 0, 1400.0),
    Sketcher.Constraint("DistanceX", 0, 3, -1, 1, 679.0),
])
pad24 = body36.newObject("PartDesign::Pad", "Pad023")
pad24.Profile = sketch24
pad24.Length = 36
body37 = doc.addObject("PartDesign::Body", "Body036")

sketch25 = body37.newObject("Sketcher::SketchObject", "Sketch024")
sketch25.AttachmentSupport = (doc.getObject("XY_Plane036"), [""])
sketch25.MapMode = "FlatFace"
sketch25.AttachmentOffset = App.Placement(App.Vector(0, 0, -4), App.Rotation())
add_polygon(sketch25, [(-29.77, 48.69), (-29.77, -50.31), (30.23, -50.31), (30.23, 48.69)])
sketch25.addConstraint([
    Sketcher.Constraint("Vertical", 0),
    Sketcher.Constraint("Horizontal", 1),
    Sketcher.Constraint("Vertical", 2),
    Sketcher.Constraint("Horizontal", 3),
    Sketcher.Constraint("DistanceX", 1, 1, 1, 2, 60.0),
    Sketcher.Constraint("DistanceY", 0, 2, 0, 1, 99.0),
    Sketcher.Constraint("DistanceX", 0, 2, -1, 1, 29.77),
    Sketcher.Constraint("DistanceY", 0, 2, -1, 1, 50.31),
])
pad25 = body37.newObject("PartDesign::Pad", "Pad024")
pad25.Profile = sketch25
pad25.Length = 94
doc.recompute()

boolean28 = body37.newObject("PartDesign::Boolean", "Boolean027")
boolean28.Type = "Common"
boolean28.addObjects([body33])
doc.recompute()

boolean29 = body37.newObject("PartDesign::Boolean", "Boolean028")
boolean29.Type = "Common"
boolean29.addObjects([body34])
doc.recompute()

boolean30 = body37.newObject("PartDesign::Boolean", "Boolean029")
boolean30.Type = "Common"
boolean30.addObjects([body35])
doc.recompute()

boolean31 = body37.newObject("PartDesign::Boolean", "Boolean030")
boolean31.Type = "Common"
boolean31.addObjects([body36])
body38 = doc.addObject("PartDesign::Body", "Body037")
doc.recompute()

body37.Placement = App.Placement(App.Vector(0, 0, -13), App.Rotation(App.Vector(0, 0, 1), 0))
boolean32 = body38.newObject("PartDesign::Boolean", "Boolean031")
boolean32.Type = "Fuse"
boolean32.addObjects([body37])
doc.recompute()

fillet9 = body38.newObject("PartDesign::Fillet", "Fillet008")
fillet9.Base = (boolean32, edges_at(boolean32, [
    (20.022, 36.995, 5),
    (20.022, -36.995, 5),
    (-20.022, -36.995, 5),
    (-20.022, 36.995, 5),
]))
fillet9.Radius = 3
body39 = doc.addObject("PartDesign::Body", "Body038")

sketch26 = body39.newObject("Sketcher::SketchObject", "Sketch025")
sketch26.AttachmentSupport = (doc.getObject("XY_Plane038"), [""])
sketch26.MapMode = "FlatFace"
sketch26.addGeometry(Part.Circle(App.Vector(675, 0, 0), App.Vector(0, 0, 1), 700), False)
sketch26.addConstraint([
    Sketcher.Constraint("PointOnObject", 0, 3, -1),
    Sketcher.Constraint("Diameter", 0, 1400.0),
    Sketcher.Constraint("DistanceX", -1, 1, 0, 3, 675.0),
])
pad26 = body39.newObject("PartDesign::Pad", "Pad025")
pad26.Profile = sketch26
pad26.Length = 36
body40 = doc.addObject("PartDesign::Body", "Body039")

sketch27 = body40.newObject("Sketcher::SketchObject", "Sketch026")
sketch27.AttachmentSupport = (doc.getObject("XY_Plane039"), [""])
sketch27.MapMode = "FlatFace"
sketch27.addGeometry(Part.Circle(App.Vector(0, 158, 0), App.Vector(0, 0, 1), 200), False)
sketch27.addConstraint([
    Sketcher.Constraint("PointOnObject", 0, 3, -2),
    Sketcher.Constraint("Diameter", 0, 400.0),
    Sketcher.Constraint("DistanceY", -1, 1, 0, 3, 158.0),
])
pad27 = body40.newObject("PartDesign::Pad", "Pad026")
pad27.Profile = sketch27
pad27.Length = 53
body41 = doc.addObject("PartDesign::Body", "Body040")

sketch28 = body41.newObject("Sketcher::SketchObject", "Sketch027")
sketch28.AttachmentSupport = (doc.getObject("XY_Plane040"), [""])
sketch28.MapMode = "FlatFace"
sketch28.addGeometry(Part.Circle(App.Vector(0, -158, 0), App.Vector(0, 0, 1), 200), False)
sketch28.addConstraint([
    Sketcher.Constraint("PointOnObject", 0, 3, -2),
    Sketcher.Constraint("Diameter", 0, 400.0),
    Sketcher.Constraint("DistanceY", 0, 3, -1, 1, 158.0),
])
pad28 = body41.newObject("PartDesign::Pad", "Pad027")
pad28.Profile = sketch28
pad28.Length = 36
body42 = doc.addObject("PartDesign::Body", "Body041")

sketch29 = body42.newObject("Sketcher::SketchObject", "Sketch028")
sketch29.AttachmentSupport = (doc.getObject("XY_Plane041"), [""])
sketch29.MapMode = "FlatFace"
sketch29.addGeometry(Part.Circle(App.Vector(-675, 0, 0), App.Vector(0, 0, 1), 700), False)
sketch29.addConstraint([
    Sketcher.Constraint("PointOnObject", 0, 3, -1),
    Sketcher.Constraint("Diameter", 0, 1400.0),
    Sketcher.Constraint("DistanceX", 0, 3, -1, 1, 675.0),
])
pad29 = body42.newObject("PartDesign::Pad", "Pad028")
pad29.Profile = sketch29
pad29.Length = 36
body43 = doc.addObject("PartDesign::Body", "Body042")

sketch30 = body43.newObject("Sketcher::SketchObject", "Sketch029")
sketch30.AttachmentSupport = (doc.getObject("XY_Plane042"), [""])
sketch30.MapMode = "FlatFace"
sketch30.AttachmentOffset = App.Placement(App.Vector(0, 0, 11), App.Rotation())
add_polygon(sketch30, [(-29.77, 48.69), (-29.77, -50.31), (30.23, -50.31), (30.23, 48.69)])
sketch30.addConstraint([
    Sketcher.Constraint("Vertical", 0),
    Sketcher.Constraint("Horizontal", 1),
    Sketcher.Constraint("Vertical", 2),
    Sketcher.Constraint("Horizontal", 3),
    Sketcher.Constraint("DistanceX", 1, 1, 1, 2, 60.0),
    Sketcher.Constraint("DistanceY", 0, 2, 0, 1, 99.0),
    Sketcher.Constraint("DistanceX", 0, 2, -1, 1, 29.77),
    Sketcher.Constraint("DistanceY", 0, 2, -1, 1, 50.31),
])
pad30 = body43.newObject("PartDesign::Pad", "Pad029")
pad30.Profile = sketch30
pad30.Length = 16
doc.recompute()

boolean33 = body43.newObject("PartDesign::Boolean", "Boolean032")
boolean33.Type = "Common"
boolean33.addObjects([body39])
doc.recompute()

boolean34 = body43.newObject("PartDesign::Boolean", "Boolean033")
boolean34.Type = "Common"
boolean34.addObjects([body40])
doc.recompute()

boolean35 = body43.newObject("PartDesign::Boolean", "Boolean034")
boolean35.Type = "Common"
boolean35.addObjects([body41])
doc.recompute()

boolean36 = body43.newObject("PartDesign::Boolean", "Boolean035")
boolean36.Type = "Common"
boolean36.addObjects([body42])
body44 = doc.addObject("PartDesign::Body", "Body043")
doc.recompute()

body43.Placement = App.Placement(App.Vector(0, 0, -3), App.Rotation(App.Vector(0, 0, 1), 0))
boolean37 = body44.newObject("PartDesign::Boolean", "Boolean036")
boolean37.Type = "Fuse"
boolean37.addObjects([body43])
doc.recompute()

fillet10 = body44.newObject("PartDesign::Fillet", "Fillet009")
fillet10.Base = (boolean37, edges_at(boolean37, [
    (23.823, 40.576, 16),
    (-23.823, 40.576, 16),
    (23.823, -40.576, 16),
    (-23.823, -40.576, 16),
]))
fillet10.Radius = 3
doc.recompute()

boolean38 = body44.newObject("PartDesign::Boolean", "Boolean037")
boolean38.Type = "Fuse"
boolean38.addObjects([body38])
doc.recompute()

boolean39 = body44.newObject("PartDesign::Boolean", "Boolean038")
boolean39.Type = "Cut"
boolean39.addObjects([body32])
body45 = doc.addObject("PartDesign::Body", "Body044")

sketch31 = body45.newObject("Sketcher::SketchObject", "Sketch030")
sketch31.AttachmentSupport = (doc.getObject("XY_Plane044"), [""])
sketch31.MapMode = "FlatFace"
sketch31.addGeometry(Part.Circle(App.Vector(673, 0, 0), App.Vector(0, 0, 1), 700), False)
sketch31.addConstraint([
    Sketcher.Constraint("PointOnObject", 0, 3, -1),
    Sketcher.Constraint("Diameter", 0, 1400.0),
    Sketcher.Constraint("DistanceX", -1, 1, 0, 3, 673.0),
])
pad31 = body45.newObject("PartDesign::Pad", "Pad030")
pad31.Profile = sketch31
pad31.Length = 36
body46 = doc.addObject("PartDesign::Body", "Body045")

sketch32 = body46.newObject("Sketcher::SketchObject", "Sketch031")
sketch32.AttachmentSupport = (doc.getObject("XY_Plane045"), [""])
sketch32.MapMode = "FlatFace"
sketch32.addGeometry(Part.Circle(App.Vector(0, 156, 0), App.Vector(0, 0, 1), 200), False)
sketch32.addConstraint([
    Sketcher.Constraint("PointOnObject", 0, 3, -2),
    Sketcher.Constraint("Diameter", 0, 400.0),
    Sketcher.Constraint("DistanceY", -1, 1, 0, 3, 156.0),
])
pad32 = body46.newObject("PartDesign::Pad", "Pad031")
pad32.Profile = sketch32
pad32.Length = 53
body47 = doc.addObject("PartDesign::Body", "Body046")

sketch33 = body47.newObject("Sketcher::SketchObject", "Sketch032")
sketch33.AttachmentSupport = (doc.getObject("XY_Plane046"), [""])
sketch33.MapMode = "FlatFace"
sketch33.addGeometry(Part.Circle(App.Vector(0, -156, 0), App.Vector(0, 0, 1), 200), False)
sketch33.addConstraint([
    Sketcher.Constraint("PointOnObject", 0, 3, -2),
    Sketcher.Constraint("Diameter", 0, 400.0),
    Sketcher.Constraint("DistanceY", 0, 3, -1, 1, 156.0),
])
pad33 = body47.newObject("PartDesign::Pad", "Pad032")
pad33.Profile = sketch33
pad33.Length = 36
body48 = doc.addObject("PartDesign::Body", "Body047")

sketch34 = body48.newObject("Sketcher::SketchObject", "Sketch033")
sketch34.AttachmentSupport = (doc.getObject("XY_Plane047"), [""])
sketch34.MapMode = "FlatFace"
sketch34.addGeometry(Part.Circle(App.Vector(-673, 0, 0), App.Vector(0, 0, 1), 700), False)
sketch34.addConstraint([
    Sketcher.Constraint("PointOnObject", 0, 3, -1),
    Sketcher.Constraint("Diameter", 0, 1400.0),
    Sketcher.Constraint("DistanceX", 0, 3, -1, 1, 673.0),
])
pad34 = body48.newObject("PartDesign::Pad", "Pad033")
pad34.Profile = sketch34
pad34.Length = 36
body49 = doc.addObject("PartDesign::Body", "Body048")

sketch35 = body49.newObject("Sketcher::SketchObject", "Sketch034")
sketch35.AttachmentSupport = (doc.getObject("XY_Plane048"), [""])
sketch35.MapMode = "FlatFace"
sketch35.AttachmentOffset = App.Placement(App.Vector(0, 0, 14), App.Rotation())
add_polygon(sketch35, [(-29.77, 48.69), (-29.77, -50.31), (30.23, -50.31), (30.23, 48.69)])
sketch35.addConstraint([
    Sketcher.Constraint("Vertical", 0),
    Sketcher.Constraint("Horizontal", 1),
    Sketcher.Constraint("Vertical", 2),
    Sketcher.Constraint("Horizontal", 3),
    Sketcher.Constraint("DistanceX", 1, 1, 1, 2, 60.0),
    Sketcher.Constraint("DistanceY", 0, 2, 0, 1, 99.0),
    Sketcher.Constraint("DistanceX", 0, 2, -1, 1, 29.77),
    Sketcher.Constraint("DistanceY", 0, 2, -1, 1, 50.31),
])
pad35 = body49.newObject("PartDesign::Pad", "Pad034")
pad35.Profile = sketch35
pad35.Length = 16
doc.recompute()

boolean40 = body49.newObject("PartDesign::Boolean", "Boolean039")
boolean40.Type = "Common"
boolean40.addObjects([body45])
doc.recompute()

boolean41 = body49.newObject("PartDesign::Boolean", "Boolean040")
boolean41.Type = "Common"
boolean41.addObjects([body46])
doc.recompute()

boolean42 = body49.newObject("PartDesign::Boolean", "Boolean041")
boolean42.Type = "Common"
boolean42.addObjects([body47])
doc.recompute()

boolean43 = body49.newObject("PartDesign::Boolean", "Boolean042")
boolean43.Type = "Common"
boolean43.addObjects([body48])
body50 = doc.addObject("PartDesign::Body", "Body049")
doc.recompute()

body49.Placement = App.Placement(App.Vector(0, 0, -13), App.Rotation(App.Vector(0, 0, 1), 0))
boolean44 = body50.newObject("PartDesign::Boolean", "Boolean043")
boolean44.Type = "Fuse"
boolean44.addObjects([body49])
doc.recompute()

boolean45 = body50.newObject("PartDesign::Boolean", "Boolean044")
boolean45.Type = "Cut"
boolean45.addObjects([body44])
doc.recompute()

boolean46 = body50.newObject("PartDesign::Boolean", "Boolean045")
boolean46.Type = "Fuse"
boolean46.addObjects([body24])
doc.recompute()

boolean47 = body50.newObject("PartDesign::Boolean", "Boolean046")
boolean47.Type = "Cut"
boolean47.addObjects([body13])
doc.recompute()

fillet11 = body50.newObject("PartDesign::Fillet", "Fillet010")
fillet11.Base = (boolean47, edges_at(boolean47, [
    (25.718, 42.34, 9),
    (-25.718, 42.34, 9),
    (-25.718, -42.34, 9),
    (25.718, -42.34, 9),
]))
fillet11.Radius = 3
mirroring.Visibility = False
mirroring2.Visibility = False

doc.recompute()
